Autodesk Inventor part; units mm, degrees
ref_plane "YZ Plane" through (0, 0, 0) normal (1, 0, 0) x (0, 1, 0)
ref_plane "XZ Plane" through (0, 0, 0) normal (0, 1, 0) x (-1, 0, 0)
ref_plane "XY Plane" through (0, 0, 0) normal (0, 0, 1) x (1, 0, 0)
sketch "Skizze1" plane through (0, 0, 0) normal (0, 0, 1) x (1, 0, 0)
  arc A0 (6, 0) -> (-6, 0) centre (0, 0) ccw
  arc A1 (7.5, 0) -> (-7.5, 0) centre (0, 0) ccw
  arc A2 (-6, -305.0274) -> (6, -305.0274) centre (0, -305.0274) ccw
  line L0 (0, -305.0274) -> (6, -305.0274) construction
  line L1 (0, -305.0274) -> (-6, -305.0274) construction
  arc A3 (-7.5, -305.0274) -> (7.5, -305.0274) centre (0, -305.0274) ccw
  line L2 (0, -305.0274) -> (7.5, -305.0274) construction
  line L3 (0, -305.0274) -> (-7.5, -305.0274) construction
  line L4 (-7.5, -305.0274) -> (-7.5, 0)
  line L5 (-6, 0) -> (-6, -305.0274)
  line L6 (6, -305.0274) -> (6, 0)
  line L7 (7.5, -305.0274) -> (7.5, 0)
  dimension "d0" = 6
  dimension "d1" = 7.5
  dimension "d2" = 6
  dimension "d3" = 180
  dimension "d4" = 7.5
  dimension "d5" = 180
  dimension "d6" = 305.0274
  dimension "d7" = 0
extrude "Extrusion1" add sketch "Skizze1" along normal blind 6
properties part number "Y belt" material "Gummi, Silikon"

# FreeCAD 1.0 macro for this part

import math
import FreeCAD as App
import Part
import Sketcher
from FreeCAD import Vector

doc = App.newDocument("Part")
body = doc.addObject("PartDesign::Body", "Body")

# Sketch on XY plane
sketch1 = body.newObject("Sketcher::SketchObject", "Sketch")
sketch1.AttachmentSupport = (doc.getObject("XY_Plane"), [""])
sketch1.MapMode = "FlatFace"
sketch1.addGeometry(Part.LineSegment(Vector(7.5, -305.0274, 0), Vector(7.5, 0, 0)), False)
sketch1.addGeometry(Part.ArcOfCircle(Part.Circle(Vector(0, 0, 0), Vector(0, 0, 1), 7.5), math.radians(0), math.radians(180)), False)
sketch1.addGeometry(Part.LineSegment(Vector(-7.5, 0, 0), Vector(-7.5, -305.0274, 0)), False)
sketch1.addGeometry(Part.ArcOfCircle(Part.Circle(Vector(0, -305.0274, 0), Vector(0, 0, 1), 7.5), math.radians(180), math.radians(360)), False)
sketch1.addGeometry(Part.ArcOfCircle(Part.Circle(Vector(0, 0, 0), Vector(0, 0, 1), 6), math.radians(0), math.radians(180)), False)
sketch1.addGeometry(Part.LineSegment(Vector(6, 0, 0), Vector(6, -305.0274, 0)), False)
sketch1.addGeometry(Part.ArcOfCircle(Part.Circle(Vector(0, -305.0274, 0), Vector(0, 0, 1), 6), math.radians(180), math.radians(360)), False)
sketch1.addGeometry(Part.LineSegment(Vector(-6, -305.0274, 0), Vector(-6, 0, 0)), False)
sketch1.addConstraint(Sketcher.Constraint("Tangent", 0, 2, 1, 1))
sketch1.addConstraint(Sketcher.Constraint("Tangent", 1, 2, 2, 1))
sketch1.addConstraint(Sketcher.Constraint("Tangent", 2, 2, 3, 1))
sketch1.addConstraint(Sketcher.Constraint("Tangent", 3, 2, 0, 1))
sketch1.addConstraint(Sketcher.Constraint("Tangent", 4, 1, 5, 1))
sketch1.addConstraint(Sketcher.Constraint("Tangent", 5, 2, 6, 2))
sketch1.addConstraint(Sketcher.Constraint("Tangent", 6, 1, 7, 1))
sketch1.addConstraint(Sketcher.Constraint("Tangent", 7, 2, 4, 2))
sketch1.addConstraint(Sketcher.Constraint("Vertical", 0))
sketch1.addConstraint(Sketcher.Constraint("Vertical", 2))
sketch1.addConstraint(Sketcher.Constraint("Vertical", 5))
sketch1.addConstraint(Sketcher.Constraint("Vertical", 7))
sketch1.addConstraint(Sketcher.Constraint("Coincident", 1, 3, -1, 1))
sketch1.addConstraint(Sketcher.Constraint("Coincident", 4, 3, -1, 1))
sketch1.addConstraint(Sketcher.Constraint("Horizontal", 6, 3, 2, 2))
sketch1.addConstraint(Sketcher.Constraint("Radius", 4, 6.0))
sketch1.addConstraint(Sketcher.Constraint("Radius", 1, 7.5))
sketch1.addConstraint(Sketcher.Constraint("DistanceY", 0, 1, 0, 2, 305.0274))
pad1 = body.newObject("PartDesign::Pad", "Pad")
pad1.Profile = sketch1
pad1.Length = 6

doc.recompute()
